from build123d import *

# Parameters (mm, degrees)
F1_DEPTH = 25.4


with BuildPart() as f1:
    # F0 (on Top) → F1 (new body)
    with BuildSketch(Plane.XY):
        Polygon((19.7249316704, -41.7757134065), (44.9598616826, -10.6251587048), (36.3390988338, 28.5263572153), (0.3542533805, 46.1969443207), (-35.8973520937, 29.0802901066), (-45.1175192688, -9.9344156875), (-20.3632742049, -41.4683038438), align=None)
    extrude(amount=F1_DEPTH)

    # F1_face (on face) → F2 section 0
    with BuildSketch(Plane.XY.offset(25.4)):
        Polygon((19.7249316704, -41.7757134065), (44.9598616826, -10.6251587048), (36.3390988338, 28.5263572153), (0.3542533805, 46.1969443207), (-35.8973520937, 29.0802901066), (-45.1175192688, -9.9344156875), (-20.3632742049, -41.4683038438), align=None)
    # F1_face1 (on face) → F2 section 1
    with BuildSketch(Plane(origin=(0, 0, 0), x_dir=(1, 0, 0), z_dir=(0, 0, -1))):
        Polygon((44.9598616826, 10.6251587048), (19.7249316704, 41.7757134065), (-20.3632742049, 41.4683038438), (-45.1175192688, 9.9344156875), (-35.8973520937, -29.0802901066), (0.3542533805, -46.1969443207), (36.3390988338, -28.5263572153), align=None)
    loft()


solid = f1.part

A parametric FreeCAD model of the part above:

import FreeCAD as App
import Part
import Sketcher

V = App.Vector
Q = App.Units.Quantity


def add_polygon(sketch, points):
    """Adds a closed chain of lines whose ends are joined by coincident constraints."""
    first, n = sketch.GeometryCount, len(points)
    for a, b in zip(points, points[1:] + points[:1]):
        sketch.addGeometry(Part.LineSegment(App.Vector(*a, 0), App.Vector(*b, 0)), False)
    for i in range(n):
        sketch.addConstraint(Sketcher.Constraint("Coincident", first + i, 2, first + (i + 1) % n, 1))

doc = App.newDocument("Part")
body = doc.addObject("PartDesign::Body", "Body")

# Sketch on XY plane
sketch1 = doc.addObject("Sketcher::SketchObject", "Sketch")
body.addObject(sketch1)
sketch1.AttachmentSupport = (doc.XY_Plane, [""])
sketch1.MapMode = "FlatFace"
add_polygon(sketch1, [(19.724932, -41.775713), (44.959862, -10.625159), (36.339099, 28.526357), (0.354253, 46.196944), (-35.897352, 29.08029), (-45.117519, -9.934416), (-20.363274, -41.468304)])  # lines 0-6
sketch1.addConstraint([
    Sketcher.Constraint("Equal", 0, 1),
    Sketcher.Constraint("Equal", 1, 2),
    Sketcher.Constraint("Equal", 2, 3),
    Sketcher.Constraint("Equal", 3, 4),
    Sketcher.Constraint("Equal", 4, 5),
    Sketcher.Constraint("Equal", 5, 6),
    Sketcher.Constraint("DistanceX", 1, 2, 0, 2, Q("0.3394001 in")),
    Sketcher.Constraint("DistanceX", -1, 1, 1, 2, Q("36.339099 mm")),
    Sketcher.Constraint("DistanceY", 0, 2, -1, 1, Q("10.625159 mm")),
    Sketcher.Constraint("DistanceY", -1, 1, 3, 2, Q("29.08029 mm")),
    Sketcher.Constraint("DistanceX", 4, 2, -1, 1, Q("45.117519 mm")),
    Sketcher.Constraint("DistanceX", -1, 1, 6, 2, Q("19.724932 mm")),
    Sketcher.Constraint("DistanceX", 2, 2, 0, 2, Q("44.605608 mm")),
    Sketcher.Constraint("DistanceX", 3, 2, 1, 2, Q("72.236451 mm")),
])
pad1 = doc.addObject("PartDesign::Pad", "Pad")
body.addObject(pad1)
pad1.Profile = sketch1
pad1.Length = Q("1 in")

# Sketch on XY plane
sketch2 = doc.addObject("Sketcher::SketchObject", "Sketch001")
body.addObject(sketch2)
sketch2.AttachmentSupport = (doc.XY_Plane, [""])
sketch2.MapMode = "FlatFace"
sketch2.AttachmentOffset = App.Placement(V(0, 0, 1 * 25.4), App.Rotation())
add_polygon(sketch2, [(19.724932, -41.775713), (44.959862, -10.625159), (36.339099, 28.526357), (0.354253, 46.196944), (-35.897352, 29.08029), (-45.117519, -9.934416), (-20.363274, -41.468304)])  # lines 0-6
sketch2.addConstraint([
    Sketcher.Constraint("Equal", 0, 1),
    Sketcher.Constraint("Equal", 1, 2),
    Sketcher.Constraint("Equal", 2, 3),
    Sketcher.Constraint("Equal", 3, 4),
    Sketcher.Constraint("Equal", 4, 5),
    Sketcher.Constraint("Equal", 5, 6),
    Sketcher.Constraint("DistanceX", 1, 2, 0, 2, Q("0.3394001 in")),
    Sketcher.Constraint("DistanceX", -1, 1, 1, 2, Q("36.339099 mm")),
    Sketcher.Constraint("DistanceY", 0, 2, -1, 1, Q("10.625159 mm")),
    Sketcher.Constraint("DistanceY", -1, 1, 3, 2, Q("29.08029 mm")),
    Sketcher.Constraint("DistanceX", 4, 2, -1, 1, Q("45.117519 mm")),
    Sketcher.Constraint("DistanceX", -1, 1, 6, 2, Q("19.724932 mm")),
    Sketcher.Constraint("DistanceX", 2, 2, 0, 2, Q("44.605608 mm")),
    Sketcher.Constraint("DistanceX", 3, 2, 1, 2, Q("72.236451 mm")),
])

# Sketch on XY plane
sketch3 = doc.addObject("Sketcher::SketchObject", "Sketch002")
body.addObject(sketch3)
sketch3.AttachmentSupport = (doc.XY_Plane, [""])
sketch3.MapMode = "FlatFace"
add_polygon(sketch3, [(44.959862, -10.625159), (19.724932, -41.775713), (-20.363274, -41.468304), (-45.117519, -9.934416), (-35.897352, 29.08029), (0.354253, 46.196944), (36.339099, 28.526357)])  # lines 0-6
sketch3.addConstraint([
    Sketcher.Constraint("Equal", 0, 1),
    Sketcher.Constraint("Equal", 1, 2),
    Sketcher.Constraint("Equal", 2, 3),
    Sketcher.Constraint("Equal", 3, 4),
    Sketcher.Constraint("Equal", 4, 5),
    Sketcher.Constraint("Equal", 5, 6),
    Sketcher.Constraint("DistanceX", 5, 2, 6, 2, Q("0.3394001 in")),
    Sketcher.Constraint("DistanceX", -1, 1, 5, 2, Q("36.339099 mm")),
    Sketcher.Constraint("DistanceX", -1, 1, 0, 2, Q("19.724932 mm")),
    Sketcher.Constraint("DistanceX", 2, 2, -1, 1, Q("45.117519 mm")),
    Sketcher.Constraint("DistanceY", -1, 1, 3, 2, Q("29.08029 mm")),
    Sketcher.Constraint("DistanceY", 6, 2, -1, 1, Q("10.625159 mm")),
    Sketcher.Constraint("DistanceY", 0, 2, 1, 2, Q("0.30741 mm")),
    Sketcher.Constraint("DistanceY", 1, 2, 2, 2, Q("31.533888 mm")),
])

additiveloft = doc.addObject("PartDesign::AdditiveLoft", "AdditiveLoft")
body.addObject(additiveloft)
additiveloft.Profile = sketch2
additiveloft.Sections = [sketch3]

doc.recompute()
